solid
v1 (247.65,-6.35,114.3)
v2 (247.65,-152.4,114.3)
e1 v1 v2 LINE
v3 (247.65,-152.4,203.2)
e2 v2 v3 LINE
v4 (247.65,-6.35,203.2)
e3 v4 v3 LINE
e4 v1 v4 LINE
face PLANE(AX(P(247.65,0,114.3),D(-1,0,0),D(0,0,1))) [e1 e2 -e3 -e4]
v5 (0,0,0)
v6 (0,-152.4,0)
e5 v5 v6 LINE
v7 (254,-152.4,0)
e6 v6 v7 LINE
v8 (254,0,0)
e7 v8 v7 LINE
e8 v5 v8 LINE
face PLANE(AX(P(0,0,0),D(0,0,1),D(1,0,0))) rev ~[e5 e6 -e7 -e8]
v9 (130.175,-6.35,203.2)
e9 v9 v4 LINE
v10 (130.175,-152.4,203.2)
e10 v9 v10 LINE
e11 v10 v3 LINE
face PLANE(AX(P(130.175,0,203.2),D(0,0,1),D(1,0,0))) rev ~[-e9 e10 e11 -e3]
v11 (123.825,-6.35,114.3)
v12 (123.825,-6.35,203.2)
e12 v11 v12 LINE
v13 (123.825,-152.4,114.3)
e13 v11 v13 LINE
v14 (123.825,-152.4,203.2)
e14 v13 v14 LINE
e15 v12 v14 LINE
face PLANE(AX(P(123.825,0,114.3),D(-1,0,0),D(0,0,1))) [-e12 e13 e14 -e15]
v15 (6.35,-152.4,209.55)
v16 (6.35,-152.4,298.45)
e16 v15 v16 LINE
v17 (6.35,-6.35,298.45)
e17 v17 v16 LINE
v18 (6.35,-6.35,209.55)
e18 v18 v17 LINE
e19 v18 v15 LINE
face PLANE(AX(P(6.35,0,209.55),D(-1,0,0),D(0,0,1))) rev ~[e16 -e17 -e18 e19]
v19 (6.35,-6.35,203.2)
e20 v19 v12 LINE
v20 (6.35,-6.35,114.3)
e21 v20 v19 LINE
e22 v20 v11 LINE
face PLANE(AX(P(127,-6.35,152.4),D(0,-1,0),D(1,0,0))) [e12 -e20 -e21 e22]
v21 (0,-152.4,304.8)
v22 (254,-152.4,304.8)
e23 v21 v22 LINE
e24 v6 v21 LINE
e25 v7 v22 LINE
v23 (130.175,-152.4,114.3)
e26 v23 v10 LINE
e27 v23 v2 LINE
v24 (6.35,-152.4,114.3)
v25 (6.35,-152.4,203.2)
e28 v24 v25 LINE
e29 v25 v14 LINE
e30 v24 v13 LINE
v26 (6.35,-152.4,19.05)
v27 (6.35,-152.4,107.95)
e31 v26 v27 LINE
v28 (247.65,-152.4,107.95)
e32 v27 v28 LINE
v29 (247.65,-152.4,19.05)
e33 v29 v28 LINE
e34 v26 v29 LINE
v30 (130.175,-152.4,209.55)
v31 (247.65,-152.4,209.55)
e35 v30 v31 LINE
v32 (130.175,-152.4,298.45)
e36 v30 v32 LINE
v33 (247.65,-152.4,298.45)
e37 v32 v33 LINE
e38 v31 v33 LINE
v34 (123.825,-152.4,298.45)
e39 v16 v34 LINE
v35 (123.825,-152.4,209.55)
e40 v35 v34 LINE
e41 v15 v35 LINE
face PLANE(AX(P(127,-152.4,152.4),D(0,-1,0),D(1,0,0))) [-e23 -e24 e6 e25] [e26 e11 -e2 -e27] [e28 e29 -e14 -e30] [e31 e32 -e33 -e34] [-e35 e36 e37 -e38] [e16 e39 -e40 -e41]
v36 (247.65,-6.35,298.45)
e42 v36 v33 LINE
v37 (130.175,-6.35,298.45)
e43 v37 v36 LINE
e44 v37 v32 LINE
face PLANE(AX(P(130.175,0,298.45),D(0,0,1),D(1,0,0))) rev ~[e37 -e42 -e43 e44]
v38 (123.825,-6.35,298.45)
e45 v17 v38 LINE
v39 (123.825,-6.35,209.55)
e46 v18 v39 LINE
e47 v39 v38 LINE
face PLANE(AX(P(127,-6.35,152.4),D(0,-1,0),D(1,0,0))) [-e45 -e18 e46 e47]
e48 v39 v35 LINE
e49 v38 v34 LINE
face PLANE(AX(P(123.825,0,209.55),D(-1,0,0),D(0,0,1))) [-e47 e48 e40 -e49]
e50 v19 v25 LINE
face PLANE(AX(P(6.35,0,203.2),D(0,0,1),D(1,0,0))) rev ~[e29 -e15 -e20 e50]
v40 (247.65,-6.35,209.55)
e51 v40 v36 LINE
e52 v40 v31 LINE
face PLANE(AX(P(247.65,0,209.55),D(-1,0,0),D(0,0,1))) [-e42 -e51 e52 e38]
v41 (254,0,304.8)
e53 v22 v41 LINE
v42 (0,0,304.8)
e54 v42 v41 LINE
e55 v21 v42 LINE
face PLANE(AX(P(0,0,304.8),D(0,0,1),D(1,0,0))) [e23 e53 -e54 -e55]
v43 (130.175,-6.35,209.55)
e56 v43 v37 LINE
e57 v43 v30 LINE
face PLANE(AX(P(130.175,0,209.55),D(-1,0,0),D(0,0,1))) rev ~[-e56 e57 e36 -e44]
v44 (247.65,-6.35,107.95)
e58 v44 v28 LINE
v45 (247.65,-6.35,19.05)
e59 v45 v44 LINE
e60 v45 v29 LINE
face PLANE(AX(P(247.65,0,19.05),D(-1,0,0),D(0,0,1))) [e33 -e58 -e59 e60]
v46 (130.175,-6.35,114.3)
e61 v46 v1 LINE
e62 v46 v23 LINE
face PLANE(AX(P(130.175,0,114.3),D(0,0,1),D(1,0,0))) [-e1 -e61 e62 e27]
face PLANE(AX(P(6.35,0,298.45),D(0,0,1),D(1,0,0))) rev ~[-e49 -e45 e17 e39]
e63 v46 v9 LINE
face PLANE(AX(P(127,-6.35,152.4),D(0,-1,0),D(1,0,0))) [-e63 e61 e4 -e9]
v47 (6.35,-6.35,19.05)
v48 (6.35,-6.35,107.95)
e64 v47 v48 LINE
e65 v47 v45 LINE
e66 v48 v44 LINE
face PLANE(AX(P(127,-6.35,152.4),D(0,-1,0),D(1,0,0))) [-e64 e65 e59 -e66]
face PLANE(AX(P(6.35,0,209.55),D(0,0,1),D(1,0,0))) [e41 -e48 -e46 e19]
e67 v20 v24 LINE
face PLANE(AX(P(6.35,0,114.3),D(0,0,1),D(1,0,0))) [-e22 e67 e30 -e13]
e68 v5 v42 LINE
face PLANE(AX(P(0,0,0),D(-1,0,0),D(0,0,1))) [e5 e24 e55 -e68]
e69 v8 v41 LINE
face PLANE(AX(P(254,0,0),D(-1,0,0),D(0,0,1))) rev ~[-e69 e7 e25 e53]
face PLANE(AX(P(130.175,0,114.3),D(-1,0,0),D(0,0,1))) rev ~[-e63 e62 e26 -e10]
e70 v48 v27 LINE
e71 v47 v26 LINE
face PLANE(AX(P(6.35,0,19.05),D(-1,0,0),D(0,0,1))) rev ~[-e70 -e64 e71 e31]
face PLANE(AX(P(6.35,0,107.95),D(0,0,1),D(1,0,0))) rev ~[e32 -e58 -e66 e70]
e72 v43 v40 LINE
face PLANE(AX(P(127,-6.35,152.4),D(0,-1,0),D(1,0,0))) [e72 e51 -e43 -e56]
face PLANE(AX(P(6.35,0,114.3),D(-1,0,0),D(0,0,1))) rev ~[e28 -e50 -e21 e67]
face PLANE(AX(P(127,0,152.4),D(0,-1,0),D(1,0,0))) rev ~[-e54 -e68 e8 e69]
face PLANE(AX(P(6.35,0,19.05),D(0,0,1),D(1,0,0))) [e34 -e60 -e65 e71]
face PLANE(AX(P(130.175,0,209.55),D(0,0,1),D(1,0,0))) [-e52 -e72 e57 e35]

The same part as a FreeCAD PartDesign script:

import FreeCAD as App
import Part
import Sketcher
from FreeCAD import Vector
Q = App.Units.Quantity

doc = App.newDocument("Part")
body = doc.addObject("PartDesign::Body", "Body")

# Sketch on XZ plane
sketch1 = doc.addObject("Sketcher::SketchObject", "Sketch")
body.addObject(sketch1)
sketch1.AttachmentSupport = (doc.XZ_Plane, [""])
sketch1.MapMode = "FlatFace"
sketch1.addGeometry(Part.LineSegment(Vector(0, 304.8, 0), Vector(0, 0, 0)), False)
sketch1.addGeometry(Part.LineSegment(Vector(0, 0, 0), Vector(254, 0, 0)), False)
sketch1.addGeometry(Part.LineSegment(Vector(254, 0, 0), Vector(254, 304.8, 0)), False)
sketch1.addGeometry(Part.LineSegment(Vector(254, 304.8, 0), Vector(0, 304.8, 0)), False)
sketch1.addGeometry(Part.LineSegment(Vector(247.65, 19.05, 0), Vector(6.35, 19.05, 0)), False)
sketch1.addGeometry(Part.LineSegment(Vector(6.35, 19.05, 0), Vector(6.35, 107.95, 0)), False)
sketch1.addGeometry(Part.LineSegment(Vector(6.35, 107.95, 0), Vector(247.65, 107.95, 0)), False)
sketch1.addGeometry(Part.LineSegment(Vector(247.65, 107.95, 0), Vector(247.65, 19.05, 0)), False)
sketch1.addGeometry(Part.LineSegment(Vector(123.825, 114.3, 0), Vector(6.35, 114.3, 0)), False)
sketch1.addGeometry(Part.LineSegment(Vector(6.35, 114.3, 0), Vector(6.35, 203.2, 0)), False)
sketch1.addGeometry(Part.LineSegment(Vector(6.35, 203.2, 0), Vector(123.825, 203.2, 0)), False)
sketch1.addGeometry(Part.LineSegment(Vector(123.825, 203.2, 0), Vector(123.825, 114.3, 0)), False)
sketch1.addGeometry(Part.LineSegment(Vector(123.825, 209.55, 0), Vector(6.35, 209.55, 0)), False)
sketch1.addGeometry(Part.LineSegment(Vector(6.35, 209.55, 0), Vector(6.35, 298.45, 0)), False)
sketch1.addGeometry(Part.LineSegment(Vector(6.35, 298.45, 0), Vector(123.825, 298.45, 0)), False)
sketch1.addGeometry(Part.LineSegment(Vector(123.825, 298.45, 0), Vector(123.825, 209.55, 0)), False)
sketch1.addGeometry(Part.LineSegment(Vector(247.65, 114.3, 0), Vector(130.175, 114.3, 0)), False)
sketch1.addGeometry(Part.LineSegment(Vector(130.175, 114.3, 0), Vector(130.175, 203.2, 0)), False)
sketch1.addGeometry(Part.LineSegment(Vector(130.175, 203.2, 0), Vector(247.65, 203.2, 0)), False)
sketch1.addGeometry(Part.LineSegment(Vector(247.65, 203.2, 0), Vector(247.65, 114.3, 0)), False)
sketch1.addGeometry(Part.LineSegment(Vector(247.65, 209.55, 0), Vector(130.175, 209.55, 0)), False)
sketch1.addGeometry(Part.LineSegment(Vector(130.175, 209.55, 0), Vector(130.175, 298.45, 0)), False)
sketch1.addGeometry(Part.LineSegment(Vector(130.175, 298.45, 0), Vector(247.65, 298.45, 0)), False)
sketch1.addGeometry(Part.LineSegment(Vector(247.65, 298.45, 0), Vector(247.65, 209.55, 0)), False)
sketch1.addConstraint(Sketcher.Constraint("Coincident", 0, 2, 1, 1))
sketch1.addConstraint(Sketcher.Constraint("Coincident", 1, 2, 2, 1))
sketch1.addConstraint(Sketcher.Constraint("Coincident", 2, 2, 3, 1))
sketch1.addConstraint(Sketcher.Constraint("Coincident", 3, 2, 0, 1))
sketch1.addConstraint(Sketcher.Constraint("Coincident", 4, 2, 5, 1))
sketch1.addConstraint(Sketcher.Constraint("Coincident", 5, 2, 6, 1))
sketch1.addConstraint(Sketcher.Constraint("Coincident", 6, 2, 7, 1))
sketch1.addConstraint(Sketcher.Constraint("Coincident", 7, 2, 4, 1))
sketch1.addConstraint(Sketcher.Constraint("Coincident", 8, 2, 9, 1))
sketch1.addConstraint(Sketcher.Constraint("Coincident", 9, 2, 10, 1))
sketch1.addConstraint(Sketcher.Constraint("Coincident", 10, 2, 11, 1))
sketch1.addConstraint(Sketcher.Constraint("Coincident", 11, 2, 8, 1))
sketch1.addConstraint(Sketcher.Constraint("Coincident", 12, 2, 13, 1))
sketch1.addConstraint(Sketcher.Constraint("Coincident", 13, 2, 14, 1))
sketch1.addConstraint(Sketcher.Constraint("Coincident", 14, 2, 15, 1))
sketch1.addConstraint(Sketcher.Constraint("Coincident", 15, 2, 12, 1))
sketch1.addConstraint(Sketcher.Constraint("Coincident", 16, 2, 17, 1))
sketch1.addConstraint(Sketcher.Constraint("Coincident", 17, 2, 18, 1))
sketch1.addConstraint(Sketcher.Constraint("Coincident", 18, 2, 19, 1))
sketch1.addConstraint(Sketcher.Constraint("Coincident", 19, 2, 16, 1))
sketch1.addConstraint(Sketcher.Constraint("Coincident", 20, 2, 21, 1))
sketch1.addConstraint(Sketcher.Constraint("Coincident", 21, 2, 22, 1))
sketch1.addConstraint(Sketcher.Constraint("Coincident", 22, 2, 23, 1))
sketch1.addConstraint(Sketcher.Constraint("Coincident", 23, 2, 20, 1))
sketch1.addConstraint(Sketcher.Constraint("Vertical", 0))
sketch1.addConstraint(Sketcher.Constraint("Horizontal", 1))
sketch1.addConstraint(Sketcher.Constraint("Vertical", 2))
sketch1.addConstraint(Sketcher.Constraint("Horizontal", 3))
sketch1.addConstraint(Sketcher.Constraint("Horizontal", 4))
sketch1.addConstraint(Sketcher.Constraint("Vertical", 5))
sketch1.addConstraint(Sketcher.Constraint("Horizontal", 6))
sketch1.addConstraint(Sketcher.Constraint("Vertical", 7))
sketch1.addConstraint(Sketcher.Constraint("Horizontal", 8))
sketch1.addConstraint(Sketcher.Constraint("Vertical", 9))
sketch1.addConstraint(Sketcher.Constraint("Horizontal", 10))
sketch1.addConstraint(Sketcher.Constraint("Vertical", 11))
sketch1.addConstraint(Sketcher.Constraint("Horizontal", 12))
sketch1.addConstraint(Sketcher.Constraint("Vertical", 13))
sketch1.addConstraint(Sketcher.Constraint("Horizontal", 14))
sketch1.addConstraint(Sketcher.Constraint("Vertical", 15))
sketch1.addConstraint(Sketcher.Constraint("Horizontal", 16))
sketch1.addConstraint(Sketcher.Constraint("Vertical", 17))
sketch1.addConstraint(Sketcher.Constraint("Horizontal", 18))
sketch1.addConstraint(Sketcher.Constraint("Vertical", 19))
sketch1.addConstraint(Sketcher.Constraint("Horizontal", 20))
sketch1.addConstraint(Sketcher.Constraint("Vertical", 21))
sketch1.addConstraint(Sketcher.Constraint("Horizontal", 22))
sketch1.addConstraint(Sketcher.Constraint("Vertical", 23))
sketch1.addConstraint(Sketcher.Constraint("Coincident", 0, 2, -1, 1))
sketch1.addConstraint(Sketcher.Constraint("Horizontal", 11, 2, 16, 2))
sketch1.addConstraint(Sketcher.Constraint("Horizontal", 10, 2, 17, 2))
sketch1.addConstraint(Sketcher.Constraint("Horizontal", 15, 2, 20, 2))
sketch1.addConstraint(Sketcher.Constraint("Horizontal", 14, 2, 21, 2))
sketch1.addConstraint(Sketcher.Constraint("Vertical", 5, 2, 8, 2))
sketch1.addConstraint(Sketcher.Constraint("Vertical", 9, 2, 12, 2))
sketch1.addConstraint(Sketcher.Constraint("Vertical", 11, 2, 14, 2))
sketch1.addConstraint(Sketcher.Constraint("Vertical", 7, 2, 18, 2))
sketch1.addConstraint(Sketcher.Constraint("Vertical", 17, 2, 20, 2))
sketch1.addConstraint(Sketcher.Constraint("Vertical", 19, 2, 22, 2))
sketch1.addConstraint(Sketcher.Constraint("Equal", 14, 16))
sketch1.addConstraint(Sketcher.Constraint("Equal", 7, 9))
sketch1.addConstraint(Sketcher.Constraint("Equal", 11, 13))
sketch1.addConstraint(Sketcher.Constraint("DistanceX", 1, 1, 1, 2, Q("10 in")))
sketch1.addConstraint(Sketcher.Constraint("DistanceY", 0, 2, 0, 1, Q("12 in")))
sketch1.addConstraint(Sketcher.Constraint("DistanceX", 4, 2, 4, 1, Q("9.5 in")))
sketch1.addConstraint(Sketcher.Constraint("DistanceY", 5, 1, 5, 2, Q("3.5 in")))
sketch1.addConstraint(Sketcher.Constraint("DistanceY", -1, 1, 9, 2, Q("8 in")))
sketch1.addConstraint(Sketcher.Constraint("DistanceY", 5, 2, 12, 2, Q("4 in")))
sketch1.addConstraint(Sketcher.Constraint("DistanceX", 8, 2, 8, 1, Q("4.625 in")))
sketch1.addConstraint(Sketcher.Constraint("DistanceX", -1, 1, 4, 2, Q("0.25 in")))
sketch1.addConstraint(Sketcher.Constraint("DistanceY", -1, 1, 4, 2, Q("0.75 in")))
pad1 = doc.addObject("PartDesign::Pad", "Pad")
body.addObject(pad1)
pad1.Profile = sketch1
pad1.Length = Q("6 in")

# Sketch on XZ plane
sketch2 = doc.addObject("Sketcher::SketchObject", "Sketch001")
body.addObject(sketch2)
sketch2.AttachmentSupport = (doc.XZ_Plane, [""])
sketch2.MapMode = "FlatFace"
sketch2.addGeometry(Part.LineSegment(Vector(0, 304.8, 0), Vector(0, 0, 0)), False)
sketch2.addGeometry(Part.LineSegment(Vector(0, 0, 0), Vector(254, 0, 0)), False)
sketch2.addGeometry(Part.LineSegment(Vector(254, 0, 0), Vector(254, 304.8, 0)), False)
sketch2.addGeometry(Part.LineSegment(Vector(254, 304.8, 0), Vector(0, 304.8, 0)), False)
sketch2.addConstraint(Sketcher.Constraint("Coincident", 0, 2, 1, 1))
sketch2.addConstraint(Sketcher.Constraint("Coincident", 1, 2, 2, 1))
sketch2.addConstraint(Sketcher.Constraint("Coincident", 2, 2, 3, 1))
sketch2.addConstraint(Sketcher.Constraint("Coincident", 3, 2, 0, 1))
sketch2.addConstraint(Sketcher.Constraint("Vertical", 0))
sketch2.addConstraint(Sketcher.Constraint("Horizontal", 1))
sketch2.addConstraint(Sketcher.Constraint("Vertical", 2))
sketch2.addConstraint(Sketcher.Constraint("Horizontal", 3))
sketch2.addConstraint(Sketcher.Constraint("Coincident", 0, 2, -1, 1))
sketch2.addConstraint(Sketcher.Constraint("DistanceX", 1, 1, 1, 2, Q("10 in")))
sketch2.addConstraint(Sketcher.Constraint("DistanceY", 0, 2, 0, 1, Q("12 in")))
pad2 = doc.addObject("PartDesign::Pad", "Pad001")
body.addObject(pad2)
pad2.Profile = sketch2
pad2.Length = Q("0.25 in")

doc.recompute()
